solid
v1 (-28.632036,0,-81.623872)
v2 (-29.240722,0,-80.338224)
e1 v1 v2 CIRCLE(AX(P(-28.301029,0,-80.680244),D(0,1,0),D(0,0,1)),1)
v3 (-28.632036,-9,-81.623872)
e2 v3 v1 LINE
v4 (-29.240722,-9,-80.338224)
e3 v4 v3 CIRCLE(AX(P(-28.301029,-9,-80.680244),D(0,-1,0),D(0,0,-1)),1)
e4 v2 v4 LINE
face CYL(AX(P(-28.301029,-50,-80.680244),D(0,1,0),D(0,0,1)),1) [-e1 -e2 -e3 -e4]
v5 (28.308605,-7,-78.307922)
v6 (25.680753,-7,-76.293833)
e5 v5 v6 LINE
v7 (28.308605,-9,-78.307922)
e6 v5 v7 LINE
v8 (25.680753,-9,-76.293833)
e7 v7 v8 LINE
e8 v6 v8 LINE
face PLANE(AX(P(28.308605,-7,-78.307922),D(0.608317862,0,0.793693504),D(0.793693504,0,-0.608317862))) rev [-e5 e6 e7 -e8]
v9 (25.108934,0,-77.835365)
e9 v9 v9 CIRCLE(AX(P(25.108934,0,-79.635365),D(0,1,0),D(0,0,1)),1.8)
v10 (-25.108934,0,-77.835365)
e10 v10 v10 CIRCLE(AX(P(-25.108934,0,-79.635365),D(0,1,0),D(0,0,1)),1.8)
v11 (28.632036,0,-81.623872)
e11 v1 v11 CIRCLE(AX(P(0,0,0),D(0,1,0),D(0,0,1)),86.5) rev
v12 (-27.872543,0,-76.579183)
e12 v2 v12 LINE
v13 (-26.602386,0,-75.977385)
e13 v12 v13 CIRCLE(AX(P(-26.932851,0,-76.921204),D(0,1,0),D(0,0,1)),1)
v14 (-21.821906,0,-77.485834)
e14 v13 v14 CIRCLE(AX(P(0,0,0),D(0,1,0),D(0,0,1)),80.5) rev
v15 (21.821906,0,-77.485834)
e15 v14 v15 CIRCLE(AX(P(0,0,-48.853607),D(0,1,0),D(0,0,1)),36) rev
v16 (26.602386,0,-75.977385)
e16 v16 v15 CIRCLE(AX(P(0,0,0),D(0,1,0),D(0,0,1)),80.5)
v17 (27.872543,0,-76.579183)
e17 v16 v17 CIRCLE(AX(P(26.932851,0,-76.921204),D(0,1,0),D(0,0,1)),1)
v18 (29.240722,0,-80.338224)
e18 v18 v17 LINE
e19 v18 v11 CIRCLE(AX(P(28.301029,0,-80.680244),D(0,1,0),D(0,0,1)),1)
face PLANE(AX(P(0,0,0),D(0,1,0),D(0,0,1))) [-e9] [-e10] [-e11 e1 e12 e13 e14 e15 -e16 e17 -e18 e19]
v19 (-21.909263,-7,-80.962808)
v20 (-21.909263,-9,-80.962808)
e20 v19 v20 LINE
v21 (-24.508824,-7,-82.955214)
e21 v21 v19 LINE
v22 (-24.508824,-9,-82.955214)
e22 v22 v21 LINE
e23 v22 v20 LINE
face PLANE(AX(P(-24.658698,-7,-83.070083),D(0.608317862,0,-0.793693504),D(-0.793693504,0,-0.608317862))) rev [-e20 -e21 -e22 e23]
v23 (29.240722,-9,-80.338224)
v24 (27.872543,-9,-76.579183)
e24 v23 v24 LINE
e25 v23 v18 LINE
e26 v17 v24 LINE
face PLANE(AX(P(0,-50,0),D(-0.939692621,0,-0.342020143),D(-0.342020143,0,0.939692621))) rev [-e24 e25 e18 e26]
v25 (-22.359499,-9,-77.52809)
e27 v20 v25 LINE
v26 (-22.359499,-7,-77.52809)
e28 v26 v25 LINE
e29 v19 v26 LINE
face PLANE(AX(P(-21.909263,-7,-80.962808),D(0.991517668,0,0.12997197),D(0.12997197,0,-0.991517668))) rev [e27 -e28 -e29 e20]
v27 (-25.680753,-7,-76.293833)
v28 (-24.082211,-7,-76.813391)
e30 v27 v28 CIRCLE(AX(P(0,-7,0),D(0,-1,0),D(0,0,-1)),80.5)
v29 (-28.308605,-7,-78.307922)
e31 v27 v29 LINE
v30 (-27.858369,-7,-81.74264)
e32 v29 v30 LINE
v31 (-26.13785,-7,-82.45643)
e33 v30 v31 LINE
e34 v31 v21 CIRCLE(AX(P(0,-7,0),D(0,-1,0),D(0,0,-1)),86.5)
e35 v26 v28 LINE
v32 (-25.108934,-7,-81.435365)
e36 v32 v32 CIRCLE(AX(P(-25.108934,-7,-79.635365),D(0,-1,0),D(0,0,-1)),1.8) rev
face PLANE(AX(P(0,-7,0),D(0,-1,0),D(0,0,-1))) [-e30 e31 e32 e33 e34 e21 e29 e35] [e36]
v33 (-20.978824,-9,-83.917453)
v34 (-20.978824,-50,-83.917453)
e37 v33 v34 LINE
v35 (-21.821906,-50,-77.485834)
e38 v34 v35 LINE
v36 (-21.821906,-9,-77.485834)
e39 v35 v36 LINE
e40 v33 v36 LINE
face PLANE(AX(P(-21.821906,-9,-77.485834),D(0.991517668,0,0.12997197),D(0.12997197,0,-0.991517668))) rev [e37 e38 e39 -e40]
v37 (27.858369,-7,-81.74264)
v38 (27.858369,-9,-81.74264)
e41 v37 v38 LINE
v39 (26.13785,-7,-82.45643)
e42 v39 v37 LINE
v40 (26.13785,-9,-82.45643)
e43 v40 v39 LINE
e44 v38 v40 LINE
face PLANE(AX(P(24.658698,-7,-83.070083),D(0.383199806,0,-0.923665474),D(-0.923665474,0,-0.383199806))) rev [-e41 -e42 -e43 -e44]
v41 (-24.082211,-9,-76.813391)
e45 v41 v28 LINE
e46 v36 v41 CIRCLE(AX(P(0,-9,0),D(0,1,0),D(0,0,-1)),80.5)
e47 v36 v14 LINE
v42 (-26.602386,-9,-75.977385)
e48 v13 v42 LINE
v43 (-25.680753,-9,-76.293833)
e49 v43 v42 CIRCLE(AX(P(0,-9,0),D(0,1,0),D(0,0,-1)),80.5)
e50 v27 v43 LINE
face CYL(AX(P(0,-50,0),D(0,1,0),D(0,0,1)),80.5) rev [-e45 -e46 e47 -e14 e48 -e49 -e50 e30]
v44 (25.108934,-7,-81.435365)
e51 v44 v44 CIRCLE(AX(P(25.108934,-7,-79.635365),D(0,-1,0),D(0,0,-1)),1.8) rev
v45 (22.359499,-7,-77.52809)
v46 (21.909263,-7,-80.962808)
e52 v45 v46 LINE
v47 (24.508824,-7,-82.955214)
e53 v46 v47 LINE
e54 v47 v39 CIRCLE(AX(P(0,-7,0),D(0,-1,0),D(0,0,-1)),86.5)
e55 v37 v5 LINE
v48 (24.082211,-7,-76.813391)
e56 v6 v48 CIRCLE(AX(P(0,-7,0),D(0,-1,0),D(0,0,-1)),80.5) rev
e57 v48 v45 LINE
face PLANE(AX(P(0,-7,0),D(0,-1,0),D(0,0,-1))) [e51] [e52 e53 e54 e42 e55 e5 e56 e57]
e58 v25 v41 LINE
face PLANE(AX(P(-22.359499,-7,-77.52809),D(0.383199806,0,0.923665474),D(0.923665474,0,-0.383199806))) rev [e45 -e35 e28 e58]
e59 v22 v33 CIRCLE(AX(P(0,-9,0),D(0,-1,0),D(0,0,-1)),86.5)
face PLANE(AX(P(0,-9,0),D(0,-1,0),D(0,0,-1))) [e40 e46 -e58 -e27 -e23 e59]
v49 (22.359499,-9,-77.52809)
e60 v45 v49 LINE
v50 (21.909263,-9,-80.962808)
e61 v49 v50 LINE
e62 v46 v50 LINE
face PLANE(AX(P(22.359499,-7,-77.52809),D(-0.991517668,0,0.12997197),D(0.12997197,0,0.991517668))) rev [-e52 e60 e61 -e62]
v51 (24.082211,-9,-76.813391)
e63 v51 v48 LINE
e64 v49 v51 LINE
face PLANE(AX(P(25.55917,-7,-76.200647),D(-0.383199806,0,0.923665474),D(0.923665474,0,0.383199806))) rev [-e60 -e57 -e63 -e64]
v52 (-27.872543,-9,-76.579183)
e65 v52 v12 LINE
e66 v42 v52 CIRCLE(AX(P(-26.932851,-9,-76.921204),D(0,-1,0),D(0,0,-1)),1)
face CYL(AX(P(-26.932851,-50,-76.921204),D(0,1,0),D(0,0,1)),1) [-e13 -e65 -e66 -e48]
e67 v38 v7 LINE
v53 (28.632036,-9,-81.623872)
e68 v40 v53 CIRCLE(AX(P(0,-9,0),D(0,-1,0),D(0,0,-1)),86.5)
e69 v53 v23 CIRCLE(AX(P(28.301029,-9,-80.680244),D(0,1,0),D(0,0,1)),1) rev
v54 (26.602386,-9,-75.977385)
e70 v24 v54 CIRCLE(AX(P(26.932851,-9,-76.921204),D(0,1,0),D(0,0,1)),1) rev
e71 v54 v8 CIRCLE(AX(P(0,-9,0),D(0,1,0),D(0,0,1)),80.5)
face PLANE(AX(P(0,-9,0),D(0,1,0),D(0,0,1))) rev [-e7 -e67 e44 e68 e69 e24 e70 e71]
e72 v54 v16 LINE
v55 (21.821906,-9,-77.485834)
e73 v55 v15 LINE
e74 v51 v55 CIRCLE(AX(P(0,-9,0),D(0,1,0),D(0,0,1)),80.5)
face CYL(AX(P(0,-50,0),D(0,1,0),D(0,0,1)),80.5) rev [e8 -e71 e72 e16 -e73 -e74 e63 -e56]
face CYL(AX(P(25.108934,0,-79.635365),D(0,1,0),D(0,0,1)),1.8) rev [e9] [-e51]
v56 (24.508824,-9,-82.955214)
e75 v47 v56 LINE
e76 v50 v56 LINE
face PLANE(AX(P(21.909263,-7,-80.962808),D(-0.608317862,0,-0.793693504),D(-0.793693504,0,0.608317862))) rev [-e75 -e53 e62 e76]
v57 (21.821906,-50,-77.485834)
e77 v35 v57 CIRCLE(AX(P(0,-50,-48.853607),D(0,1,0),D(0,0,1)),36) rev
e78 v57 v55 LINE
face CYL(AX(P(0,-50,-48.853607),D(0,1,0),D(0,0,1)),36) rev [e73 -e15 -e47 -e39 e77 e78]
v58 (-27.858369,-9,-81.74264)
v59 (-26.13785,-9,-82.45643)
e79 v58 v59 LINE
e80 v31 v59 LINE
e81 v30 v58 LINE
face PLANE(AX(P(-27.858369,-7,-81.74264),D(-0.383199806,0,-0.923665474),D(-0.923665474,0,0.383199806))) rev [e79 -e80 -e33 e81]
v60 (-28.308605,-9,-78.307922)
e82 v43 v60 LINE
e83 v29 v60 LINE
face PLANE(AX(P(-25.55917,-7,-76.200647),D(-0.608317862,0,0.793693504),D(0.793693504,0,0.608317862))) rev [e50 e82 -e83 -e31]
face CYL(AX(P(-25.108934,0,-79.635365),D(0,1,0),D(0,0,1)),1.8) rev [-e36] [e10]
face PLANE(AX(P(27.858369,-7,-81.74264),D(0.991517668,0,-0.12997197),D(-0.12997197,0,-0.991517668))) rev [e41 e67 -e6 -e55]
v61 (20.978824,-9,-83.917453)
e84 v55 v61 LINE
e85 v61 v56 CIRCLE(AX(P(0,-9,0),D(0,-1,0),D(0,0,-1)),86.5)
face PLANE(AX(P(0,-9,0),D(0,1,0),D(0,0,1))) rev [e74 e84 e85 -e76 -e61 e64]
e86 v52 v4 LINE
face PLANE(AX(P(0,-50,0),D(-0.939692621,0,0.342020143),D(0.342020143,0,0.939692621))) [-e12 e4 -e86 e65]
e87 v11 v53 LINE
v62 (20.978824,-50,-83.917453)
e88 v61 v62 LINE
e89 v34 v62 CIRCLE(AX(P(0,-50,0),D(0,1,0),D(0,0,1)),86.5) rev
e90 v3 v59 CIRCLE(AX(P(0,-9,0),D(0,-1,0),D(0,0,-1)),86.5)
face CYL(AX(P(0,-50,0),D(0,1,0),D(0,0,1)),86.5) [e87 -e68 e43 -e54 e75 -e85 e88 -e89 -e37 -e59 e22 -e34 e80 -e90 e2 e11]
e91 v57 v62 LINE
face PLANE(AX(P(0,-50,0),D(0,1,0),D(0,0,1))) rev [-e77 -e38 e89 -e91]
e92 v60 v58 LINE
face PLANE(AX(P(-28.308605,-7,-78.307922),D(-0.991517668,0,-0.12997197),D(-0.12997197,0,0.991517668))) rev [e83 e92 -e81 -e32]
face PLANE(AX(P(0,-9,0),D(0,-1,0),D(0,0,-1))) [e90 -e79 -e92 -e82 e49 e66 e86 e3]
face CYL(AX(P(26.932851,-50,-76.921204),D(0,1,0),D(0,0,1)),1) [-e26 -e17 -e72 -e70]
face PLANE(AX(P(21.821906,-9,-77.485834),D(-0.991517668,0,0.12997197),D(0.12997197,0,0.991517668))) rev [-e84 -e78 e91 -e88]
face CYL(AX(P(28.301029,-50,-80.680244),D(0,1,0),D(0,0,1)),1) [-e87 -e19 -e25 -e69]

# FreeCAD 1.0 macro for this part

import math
import FreeCAD as App
import Part
import Sketcher

V = App.Vector
Q = App.Units.Quantity


def edges_at(feature, points):
    """Names of the edges that pass closest to the given points."""
    edges = feature.Shape.Edges
    near = lambda p: min(range(len(edges)), key=lambda i: edges[i].distToShape(Part.Vertex(*p))[0])
    return sorted({f"Edge{near(p) + 1}" for p in points})


def add_polygon(sketch, points):
    """Adds a closed chain of lines whose ends are joined by coincident constraints."""
    first, n = sketch.GeometryCount, len(points)
    for a, b in zip(points, points[1:] + points[:1]):
        sketch.addGeometry(Part.LineSegment(App.Vector(*a, 0), App.Vector(*b, 0)), False)
    for i in range(n):
        sketch.addConstraint(Sketcher.Constraint("Coincident", first + i, 2, first + (i + 1) % n, 1))

doc = App.newDocument("Part")
params = doc.addObject("Spreadsheet::Sheet", "Params")
for row, (alias, value) in enumerate([
    ("sketch1_radius", "36 mm"),
    ("sketch1_radius2", "86.5 mm"),
    ("sketch1_radius3", "80.499999 mm"),
    ("pad1_length", "50 mm"),
    ("sketch2_diameter", "3.6 mm"),
    ("hole_diameter", "3.6 mm"),
    ("sketch3_radius", "86.5 mm"),
    ("sketch3_radius2", "80.499999 mm"),
    ("pocket1_length", "41 mm"),
    ("pocket2_length", "2 mm"),
    ("fillet_radius", "1 mm"),
], start=1):
    params.set(f"A{row}", alias)
    params.set(f"B{row}", "=" + value)
    params.setAlias(f"B{row}", alias)

body = doc.addObject("PartDesign::Body", "Body")

sketch1 = body.newObject("Sketcher::SketchObject", "Sketch")
sketch1.AttachmentSupport = (doc.getObject("XZ_Plane"), [""])
sketch1.MapMode = "FlatFace"
sketch1.addGeometry([
    Part.LineSegment(V(27.532622, -75.645256, 0), V(29.584742, -81.283412, 0)),
    Part.ArcOfCircle(Part.Circle(V(0, 0, 0), V(0, 0, 1), 86.5), math.radians(-110), math.radians(-70)),
    Part.LineSegment(V(-29.584742, -81.283412, 0), V(-27.532622, -75.645256, 0)),
    Part.ArcOfCircle(Part.Circle(V(0, -0.000001, 0), V(0, 0, 1), 80.499999), math.radians(-110), math.radians(-105.728518)),
    Part.ArcOfCircle(Part.Circle(V(0, -48.853607, 0), V(0, 0, 1), 36), math.radians(-127.312653), math.radians(-52.687347)),
    Part.ArcOfCircle(Part.Circle(V(0, -0.000001, 0), V(0, 0, 1), 80.499999), math.radians(-74.271482), math.radians(-70)),
], False)
sketch1.addConstraint([
    Sketcher.Constraint("Coincident", 0, 2, 1, 2),
    Sketcher.Constraint("Coincident", 1, 1, 2, 1),
    Sketcher.Constraint("Coincident", 2, 2, 3, 1),
    Sketcher.Constraint("Coincident", 3, 2, 4, 1),
    Sketcher.Constraint("Coincident", 4, 2, 5, 1),
    Sketcher.Constraint("Coincident", 5, 2, 0, 1),
    Sketcher.Constraint("Coincident", 1, 3, -1, 1),
    Sketcher.Constraint("Coincident", 3, 3, -1, 1),
    Sketcher.Constraint("Coincident", 5, 3, -1, 1),
    Sketcher.Constraint("Equal", 3, 5),
    Sketcher.Constraint("PointOnObject", 4, 3, -2),
    Sketcher.Constraint("Horizontal", 0, 2, 1, 1),
    Sketcher.Constraint("Horizontal", 2, 2, 5, 2),
    Sketcher.Constraint("Radius", 4, Q("36 mm")),
    Sketcher.Constraint("Radius", 1, Q("86.5 mm")),
    Sketcher.Constraint("Radius", 3, Q("80.499999 mm")),
    Sketcher.Constraint("Angle", 0, Q("-70 deg")),
    Sketcher.Constraint("DistanceY", 0, 2, -1, 1, Q("81.283412 mm")),
    Sketcher.Constraint("DistanceY", 2, 2, 4, 3, Q("26.791649 mm")),
])
sketch1.setExpression("Constraints[13]", "Params.sketch1_radius")
sketch1.setExpression("Constraints[14]", "Params.sketch1_radius2")
sketch1.setExpression("Constraints[15]", "Params.sketch1_radius3")
pad1 = body.newObject("PartDesign::Pad", "Pad")
pad1.Profile = sketch1
pad1.setExpression("Length", "Params.pad1_length")

sketch2 = body.newObject("Sketcher::SketchObject", "Sketch001")
sketch2.AttachmentSupport = (doc.getObject("XZ_Plane"), [""])
sketch2.MapMode = "FlatFace"
sketch2.addGeometry([
    Part.Circle(V(-25.108934, -79.635365, 0), V(0, 0, 1), 1.8),
    Part.Circle(V(25.108934, -79.635365, 0), V(0, 0, 1), 1.8),
], False)
sketch2.addConstraint([
    Sketcher.Constraint("Equal", 0, 1),
    Sketcher.Constraint("Symmetric", 0, 3, 1, 3, -2),
    Sketcher.Constraint("Diameter", 0, Q("3.6 mm")),
    Sketcher.Constraint("DistanceX", 0, 3, 1, 3, Q("50.217869 mm")),
    Sketcher.Constraint("DistanceY", 0, 3, -1, 1, Q("79.635365 mm")),
])
sketch2.setExpression("Constraints[2]", "Params.sketch2_diameter")
doc.recompute()
hole = body.newObject("PartDesign::Hole", "Hole")
hole.Profile = sketch2
hole.ThreadType = "None"
hole.setExpression("Diameter", "Params.hole_diameter")
hole.DepthType = "ThroughAll"
hole.Reversed = True

sketch3 = body.newObject("Sketcher::SketchObject", "Sketch002")
sketch3.AttachmentSupport = (doc.getObject("XZ_Plane"), [""])
sketch3.MapMode = "FlatFace"
sketch3.AttachmentOffset = App.Placement(V(0, 0, 9), App.Rotation())
sketch3.addGeometry([
    Part.LineSegment(V(-27.532622, -75.645256, 0), V(-29.584742, -81.283412, 0)),
    Part.ArcOfCircle(Part.Circle(V(0, 0, 0), V(0, 0, 1), 86.5), math.radians(-110), math.radians(-104.035897)),
    Part.LineSegment(V(-20.978824, -83.917453, 0), V(-21.821906, -77.485834, 0)),
    Part.ArcOfCircle(Part.Circle(V(0, -0.000001, 0), V(0, 0, 1), 80.499999), math.radians(-110), math.radians(-105.728518)),
    Part.LineSegment(V(29.584742, -81.283412, 0), V(27.532622, -75.645256, 0)),
    Part.ArcOfCircle(Part.Circle(V(0, -0.000001, 0), V(0, 0, 1), 80.499999), math.radians(-74.271482), math.radians(-70)),
    Part.LineSegment(V(21.821906, -77.485834, 0), V(20.978824, -83.917453, 0)),
    Part.ArcOfCircle(Part.Circle(V(0, 0, 0), V(0, 0, 1), 86.5), math.radians(-75.964103), math.radians(-70)),
], False)
sketch3.addConstraint([
    Sketcher.Constraint("Coincident", 0, 2, 1, 1),
    Sketcher.Constraint("Coincident", 1, 2, 2, 1),
    Sketcher.Constraint("Coincident", 2, 2, 3, 2),
    Sketcher.Constraint("Coincident", 3, 1, 0, 1),
    Sketcher.Constraint("Coincident", 4, 2, 5, 2),
    Sketcher.Constraint("Coincident", 5, 1, 6, 1),
    Sketcher.Constraint("Coincident", 6, 2, 7, 1),
    Sketcher.Constraint("Coincident", 7, 2, 4, 1),
    Sketcher.Constraint("Coincident", 1, 3, -1, 1),
    Sketcher.Constraint("Coincident", 3, 3, -1, 1),
    Sketcher.Constraint("Coincident", 5, 3, -1, 1),
    Sketcher.Constraint("Coincident", 7, 3, -1, 1),
    Sketcher.Constraint("Equal", 3, 5),
    Sketcher.Constraint("Equal", 1, 7),
    Sketcher.Constraint("Horizontal", 3, 1, 4, 2),
    Sketcher.Constraint("Horizontal", 2, 2, 5, 1),
    Sketcher.Constraint("Horizontal", 1, 2, 6, 2),
    Sketcher.Constraint("Horizontal", 0, 2, 7, 2),
    Sketcher.Constraint("Radius", 1, Q("86.5 mm")),
    Sketcher.Constraint("Radius", 3, Q("80.499999 mm")),
    Sketcher.Constraint("Angle", 0, Q("-110 deg")),
    Sketcher.Constraint("Distance", 2, Q("6.486641 mm")),
    Sketcher.Constraint("DistanceY", 0, 2, -1, 1, Q("81.283412 mm")),
    Sketcher.Constraint("DistanceX", 0, 2, 1, 2, Q("8.605918 mm")),
])
sketch3.setExpression("Constraints[18]", "Params.sketch3_radius")
sketch3.setExpression("Constraints[19]", "Params.sketch3_radius2")
pocket1 = body.newObject("PartDesign::Pocket", "Pocket")
pocket1.Profile = sketch3
pocket1.setExpression("Length", "Params.pocket1_length")
pocket1.Reversed = True

sketch4 = body.newObject("Sketcher::SketchObject", "Sketch003")
sketch4.AttachmentSupport = (doc.getObject("XZ_Plane"), [""])
sketch4.MapMode = "FlatFace"
sketch4.AttachmentOffset = App.Placement(V(0, 0, 9), App.Rotation())
add_polygon(sketch4, [(-25.55917, -76.200647), (-28.308605, -78.307922), (-27.858369, -81.74264), (-24.658698, -83.070083), (-21.909263, -80.962808), (-22.359499, -77.52809)])
add_polygon(sketch4, [(28.308605, -78.307922), (25.55917, -76.200647), (22.359499, -77.52809), (21.909263, -80.962808), (24.658698, -83.070083), (27.858369, -81.74264)])
sketch4.addConstraint([
    Sketcher.Constraint("Symmetric", 5, 2, 6, 2, -2),
    Sketcher.Constraint("Symmetric", 4, 2, 7, 2, -2),
    Sketcher.Constraint("Symmetric", 3, 2, 8, 2, -2),
    Sketcher.Constraint("Symmetric", 2, 2, 9, 2, -2),
    Sketcher.Constraint("Symmetric", 1, 2, 10, 2, -2),
    Sketcher.Constraint("Symmetric", 0, 2, 11, 2, -2),
    Sketcher.Constraint("Parallel", 0, 3),
    Sketcher.Constraint("Parallel", 1, 4),
    Sketcher.Constraint("Parallel", 2, 5),
    Sketcher.Constraint("Equal", 0, 1),
    Sketcher.Constraint("Equal", 1, 2),
    Sketcher.Constraint("Equal", 2, 3),
    Sketcher.Constraint("DistanceX", 4, 2, 7, 2, Q("44.718999 mm")),
    Sketcher.Constraint("Distance", 0, Q("3.464102 mm")),
    Sketcher.Constraint("DistanceX", 2, 2, -1, 1, Q("24.658698 mm")),
    Sketcher.Constraint("DistanceX", 1, 2, -1, 1, Q("27.858369 mm")),
    Sketcher.Constraint("DistanceY", 1, 2, -1, 1, Q("81.74264 mm")),
    Sketcher.Constraint("DistanceY", 3, 2, -1, 1, Q("80.962808 mm")),
])
pocket2 = body.newObject("PartDesign::Pocket", "Pocket001")
pocket2.Profile = sketch4
pocket2.setExpression("Length", "Params.pocket2_length")
doc.recompute()

fillet = body.newObject("PartDesign::Fillet", "Fillet")
fillet.Base = (pocket2, edges_at(pocket2, [
    (27.533, -4.5, -75.645),
    (29.585, -4.5, -81.283),
    (-29.585, -4.5, -81.283),
    (-27.533, -4.5, -75.645),
]))
fillet.setExpression("Radius", "Params.fillet_radius")

doc.recompute()
